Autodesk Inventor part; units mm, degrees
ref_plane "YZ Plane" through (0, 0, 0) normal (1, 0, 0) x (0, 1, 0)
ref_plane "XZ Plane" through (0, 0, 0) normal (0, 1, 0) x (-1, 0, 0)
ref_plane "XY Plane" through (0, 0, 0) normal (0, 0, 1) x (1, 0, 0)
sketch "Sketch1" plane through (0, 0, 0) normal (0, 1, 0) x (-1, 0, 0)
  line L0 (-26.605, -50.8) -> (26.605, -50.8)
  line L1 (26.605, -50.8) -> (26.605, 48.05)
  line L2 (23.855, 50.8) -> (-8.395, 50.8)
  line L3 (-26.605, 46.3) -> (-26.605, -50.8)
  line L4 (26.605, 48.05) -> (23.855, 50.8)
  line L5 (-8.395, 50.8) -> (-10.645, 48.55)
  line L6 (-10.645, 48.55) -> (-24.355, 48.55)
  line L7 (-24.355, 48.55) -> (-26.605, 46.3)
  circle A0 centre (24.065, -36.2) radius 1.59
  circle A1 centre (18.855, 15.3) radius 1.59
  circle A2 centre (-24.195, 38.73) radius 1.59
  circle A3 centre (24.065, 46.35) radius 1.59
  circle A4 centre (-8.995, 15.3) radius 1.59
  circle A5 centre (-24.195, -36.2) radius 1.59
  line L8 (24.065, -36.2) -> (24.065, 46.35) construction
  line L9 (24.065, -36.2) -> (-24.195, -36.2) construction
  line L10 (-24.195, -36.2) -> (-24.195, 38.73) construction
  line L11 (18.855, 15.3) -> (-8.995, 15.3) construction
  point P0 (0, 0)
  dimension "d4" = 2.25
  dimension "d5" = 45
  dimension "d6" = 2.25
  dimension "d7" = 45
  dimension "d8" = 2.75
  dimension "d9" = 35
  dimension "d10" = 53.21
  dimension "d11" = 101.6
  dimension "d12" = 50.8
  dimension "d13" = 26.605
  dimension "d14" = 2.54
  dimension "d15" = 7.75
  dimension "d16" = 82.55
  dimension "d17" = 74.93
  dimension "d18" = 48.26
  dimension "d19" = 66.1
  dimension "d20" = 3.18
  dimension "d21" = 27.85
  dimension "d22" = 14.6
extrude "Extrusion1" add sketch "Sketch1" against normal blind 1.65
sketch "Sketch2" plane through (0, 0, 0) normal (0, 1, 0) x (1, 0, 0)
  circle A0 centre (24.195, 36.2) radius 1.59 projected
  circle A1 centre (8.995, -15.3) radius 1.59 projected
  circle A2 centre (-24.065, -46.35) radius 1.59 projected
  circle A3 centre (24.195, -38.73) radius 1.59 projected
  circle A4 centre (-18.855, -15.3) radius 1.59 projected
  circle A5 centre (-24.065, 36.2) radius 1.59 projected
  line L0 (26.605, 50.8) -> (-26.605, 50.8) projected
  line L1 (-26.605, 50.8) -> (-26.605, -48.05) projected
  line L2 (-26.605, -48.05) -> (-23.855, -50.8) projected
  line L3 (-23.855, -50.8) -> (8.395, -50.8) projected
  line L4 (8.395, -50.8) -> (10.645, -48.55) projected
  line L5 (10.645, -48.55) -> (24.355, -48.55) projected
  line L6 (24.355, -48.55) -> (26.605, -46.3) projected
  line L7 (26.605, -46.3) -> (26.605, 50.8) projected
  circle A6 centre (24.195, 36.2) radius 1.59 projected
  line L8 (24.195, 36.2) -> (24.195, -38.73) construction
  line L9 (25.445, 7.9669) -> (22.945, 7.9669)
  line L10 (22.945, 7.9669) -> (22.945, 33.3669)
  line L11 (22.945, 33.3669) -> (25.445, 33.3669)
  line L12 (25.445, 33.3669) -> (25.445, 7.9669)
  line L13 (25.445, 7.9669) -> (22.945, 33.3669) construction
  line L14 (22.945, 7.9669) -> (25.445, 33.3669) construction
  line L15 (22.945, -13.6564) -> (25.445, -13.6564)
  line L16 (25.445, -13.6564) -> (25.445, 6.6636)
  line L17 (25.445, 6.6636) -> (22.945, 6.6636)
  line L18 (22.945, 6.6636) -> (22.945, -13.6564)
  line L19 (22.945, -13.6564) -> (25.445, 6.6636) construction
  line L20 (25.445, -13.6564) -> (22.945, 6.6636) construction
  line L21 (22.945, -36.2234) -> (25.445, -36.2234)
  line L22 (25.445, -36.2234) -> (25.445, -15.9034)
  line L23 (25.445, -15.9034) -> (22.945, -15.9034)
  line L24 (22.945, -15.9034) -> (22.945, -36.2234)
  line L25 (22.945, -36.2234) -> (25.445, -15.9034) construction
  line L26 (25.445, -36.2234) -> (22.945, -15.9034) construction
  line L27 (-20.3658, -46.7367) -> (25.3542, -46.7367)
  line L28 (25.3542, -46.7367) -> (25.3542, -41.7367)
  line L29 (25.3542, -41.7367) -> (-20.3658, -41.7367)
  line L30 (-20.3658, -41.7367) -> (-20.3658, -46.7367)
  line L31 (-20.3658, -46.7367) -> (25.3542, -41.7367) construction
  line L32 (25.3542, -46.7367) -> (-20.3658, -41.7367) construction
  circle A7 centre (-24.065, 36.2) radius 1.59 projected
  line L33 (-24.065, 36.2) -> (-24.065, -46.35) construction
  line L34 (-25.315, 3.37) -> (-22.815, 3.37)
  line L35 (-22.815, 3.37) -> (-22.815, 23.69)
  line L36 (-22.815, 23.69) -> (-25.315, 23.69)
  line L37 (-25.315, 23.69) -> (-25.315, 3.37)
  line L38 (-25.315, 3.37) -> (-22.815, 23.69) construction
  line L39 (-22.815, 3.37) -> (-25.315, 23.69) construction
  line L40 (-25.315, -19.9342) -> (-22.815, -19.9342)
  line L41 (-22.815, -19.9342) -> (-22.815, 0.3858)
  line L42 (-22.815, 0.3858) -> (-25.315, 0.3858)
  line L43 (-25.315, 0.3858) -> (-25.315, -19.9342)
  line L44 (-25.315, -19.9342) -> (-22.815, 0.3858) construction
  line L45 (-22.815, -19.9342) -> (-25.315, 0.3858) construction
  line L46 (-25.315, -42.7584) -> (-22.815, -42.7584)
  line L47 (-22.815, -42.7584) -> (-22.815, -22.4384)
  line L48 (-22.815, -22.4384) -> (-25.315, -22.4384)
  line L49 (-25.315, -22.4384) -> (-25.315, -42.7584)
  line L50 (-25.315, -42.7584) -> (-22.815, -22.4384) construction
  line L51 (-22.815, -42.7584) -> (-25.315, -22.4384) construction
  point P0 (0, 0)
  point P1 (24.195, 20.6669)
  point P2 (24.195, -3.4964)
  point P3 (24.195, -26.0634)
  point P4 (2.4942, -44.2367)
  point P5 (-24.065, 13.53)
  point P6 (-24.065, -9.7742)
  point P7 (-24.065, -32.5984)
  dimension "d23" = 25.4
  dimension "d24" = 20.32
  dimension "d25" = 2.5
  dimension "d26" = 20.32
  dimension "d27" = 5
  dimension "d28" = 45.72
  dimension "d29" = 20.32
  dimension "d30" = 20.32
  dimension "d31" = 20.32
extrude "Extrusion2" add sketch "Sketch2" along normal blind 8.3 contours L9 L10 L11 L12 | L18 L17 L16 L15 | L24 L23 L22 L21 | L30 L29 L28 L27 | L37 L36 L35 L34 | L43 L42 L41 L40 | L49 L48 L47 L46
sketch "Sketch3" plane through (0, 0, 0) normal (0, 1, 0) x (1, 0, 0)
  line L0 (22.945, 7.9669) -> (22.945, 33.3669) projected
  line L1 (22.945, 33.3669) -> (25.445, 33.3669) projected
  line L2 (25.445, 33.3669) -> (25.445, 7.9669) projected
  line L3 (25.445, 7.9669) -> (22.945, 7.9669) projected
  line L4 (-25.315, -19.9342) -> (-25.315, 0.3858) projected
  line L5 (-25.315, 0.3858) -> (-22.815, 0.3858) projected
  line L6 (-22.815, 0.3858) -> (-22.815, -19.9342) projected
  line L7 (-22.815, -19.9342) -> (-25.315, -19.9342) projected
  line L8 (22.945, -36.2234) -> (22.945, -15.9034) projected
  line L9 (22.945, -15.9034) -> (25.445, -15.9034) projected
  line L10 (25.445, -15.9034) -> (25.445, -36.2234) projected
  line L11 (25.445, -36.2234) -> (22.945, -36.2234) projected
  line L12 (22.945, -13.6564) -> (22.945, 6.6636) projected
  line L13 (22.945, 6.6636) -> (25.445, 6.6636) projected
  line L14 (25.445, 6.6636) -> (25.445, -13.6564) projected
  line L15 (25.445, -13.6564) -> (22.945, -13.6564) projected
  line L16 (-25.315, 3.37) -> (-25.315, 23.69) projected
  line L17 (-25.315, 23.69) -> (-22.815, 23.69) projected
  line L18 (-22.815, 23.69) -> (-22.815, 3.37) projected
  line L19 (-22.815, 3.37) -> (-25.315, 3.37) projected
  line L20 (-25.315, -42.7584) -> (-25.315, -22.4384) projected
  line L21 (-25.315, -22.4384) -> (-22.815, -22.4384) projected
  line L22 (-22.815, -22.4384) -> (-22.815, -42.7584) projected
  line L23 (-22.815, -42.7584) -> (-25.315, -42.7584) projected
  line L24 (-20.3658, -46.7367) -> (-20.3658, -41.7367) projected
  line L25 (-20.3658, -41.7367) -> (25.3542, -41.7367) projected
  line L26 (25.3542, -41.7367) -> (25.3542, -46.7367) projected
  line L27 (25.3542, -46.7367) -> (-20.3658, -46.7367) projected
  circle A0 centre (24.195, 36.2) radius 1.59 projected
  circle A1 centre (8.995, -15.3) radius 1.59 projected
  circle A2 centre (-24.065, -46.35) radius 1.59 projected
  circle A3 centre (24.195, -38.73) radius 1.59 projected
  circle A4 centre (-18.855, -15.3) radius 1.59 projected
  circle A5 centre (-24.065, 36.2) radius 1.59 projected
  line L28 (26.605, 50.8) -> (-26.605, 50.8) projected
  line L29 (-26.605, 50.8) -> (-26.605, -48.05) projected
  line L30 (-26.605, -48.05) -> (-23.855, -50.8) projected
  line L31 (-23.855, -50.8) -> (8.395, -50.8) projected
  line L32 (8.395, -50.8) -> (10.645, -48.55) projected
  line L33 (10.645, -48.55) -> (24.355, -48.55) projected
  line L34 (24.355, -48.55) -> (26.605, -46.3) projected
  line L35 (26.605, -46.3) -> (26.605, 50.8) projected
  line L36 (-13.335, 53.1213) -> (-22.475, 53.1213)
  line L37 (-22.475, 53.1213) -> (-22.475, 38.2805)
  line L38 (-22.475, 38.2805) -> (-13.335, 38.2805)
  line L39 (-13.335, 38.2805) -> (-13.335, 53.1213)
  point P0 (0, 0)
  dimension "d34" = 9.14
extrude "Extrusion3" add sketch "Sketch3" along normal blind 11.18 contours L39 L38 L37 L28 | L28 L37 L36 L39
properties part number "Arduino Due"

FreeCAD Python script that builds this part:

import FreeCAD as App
import Part
import Sketcher

V = App.Vector
Q = App.Units.Quantity

doc = App.newDocument("Part")
body = doc.addObject("PartDesign::Body", "Body")

# Sketch on XZ plane
sketch1 = body.newObject("Sketcher::SketchObject", "Sketch")
sketch1.AttachmentSupport = (doc.getObject("XZ_Plane"), [""])
sketch1.MapMode = "FlatFace"
sketch1.addGeometry([
    Part.LineSegment(V(26.605, 46.3, 0), V(26.605, -50.8, 0)),  # 0
    Part.LineSegment(V(26.605, -50.8, 0), V(-26.605, -50.8, 0)),  # 1
    Part.LineSegment(V(-26.605, -50.8, 0), V(-26.605, 48.05, 0)),  # 2
    Part.LineSegment(V(-26.605, 48.05, 0), V(-23.855, 50.8, 0)),  # 3
    Part.LineSegment(V(-23.855, 50.8, 0), V(8.395, 50.8, 0)),  # 4
    Part.LineSegment(V(8.395, 50.8, 0), V(10.645, 48.55, 0)),  # 5
    Part.LineSegment(V(10.645, 48.55, 0), V(24.355, 48.55, 0)),  # 6
    Part.LineSegment(V(24.355, 48.55, 0), V(26.605, 46.3, 0)),  # 7
    Part.Circle(V(24.195, -36.2, 0), V(0, 0, 1), 1.59),  # 8
    Part.Circle(V(-24.065, -36.2, 0), V(0, 0, 1), 1.59),  # 9
    Part.Circle(V(8.995, 15.3, 0), V(0, 0, 1), 1.59),  # 10
    Part.Circle(V(24.195, 38.73, 0), V(0, 0, 1), 1.59),  # 11
    Part.Circle(V(-18.855, 15.3, 0), V(0, 0, 1), 1.59),  # 12
    Part.Circle(V(-24.065, 46.35, 0), V(0, 0, 1), 1.59),  # 13
], False)
sketch1.addConstraint([
    Sketcher.Constraint("Coincident", 0, 2, 1, 1),
    Sketcher.Constraint("Coincident", 1, 2, 2, 1),
    Sketcher.Constraint("Coincident", 2, 2, 3, 1),
    Sketcher.Constraint("Coincident", 3, 2, 4, 1),
    Sketcher.Constraint("Coincident", 4, 2, 5, 1),
    Sketcher.Constraint("Coincident", 5, 2, 6, 1),
    Sketcher.Constraint("Coincident", 6, 2, 7, 1),
    Sketcher.Constraint("Coincident", 7, 2, 0, 1),
    Sketcher.Constraint("Vertical", 0),
    Sketcher.Constraint("Horizontal", 1),
    Sketcher.Constraint("Vertical", 2),
    Sketcher.Constraint("Horizontal", 4),
    Sketcher.Constraint("Horizontal", 6),
    Sketcher.Constraint("Equal", 8, 9),
    Sketcher.Constraint("Equal", 9, 10),
    Sketcher.Constraint("Equal", 10, 11),
    Sketcher.Constraint("Equal", 11, 12),
    Sketcher.Constraint("Equal", 12, 13),
    Sketcher.Constraint("Perpendicular", 3, 5),
    Sketcher.Constraint("Parallel", 5, 7),
    Sketcher.Constraint("Horizontal", 8, 3, 9, 3),
    Sketcher.Constraint("Horizontal", 10, 3, 12, 3),
    Sketcher.Constraint("Vertical", 8, 3, 11, 3),
    Sketcher.Constraint("Vertical", 9, 3, 13, 3),
    Sketcher.Constraint("Equal", 5, 7),
    Sketcher.Constraint("Diameter", 8, 3.18),
    Sketcher.Constraint("Angle", 3, Q("45 deg")),
    Sketcher.Constraint("DistanceX", 2, 2, 4, 2, 35.0),
    Sketcher.Constraint("DistanceX", 1, 2, 1, 1, 53.21),
    Sketcher.Constraint("DistanceY", 0, 2, -1, 1, 50.8),
    Sketcher.Constraint("DistanceY", -1, 1, 3, 2, 50.8),
    Sketcher.Constraint("DistanceY", 0, 2, 8, 3, 14.6),
    Sketcher.Constraint("DistanceY", 0, 2, 10, 3, 66.1),
    Sketcher.Constraint("DistanceX", 1, 2, 8, 3, 50.8),
    Sketcher.Constraint("DistanceX", 9, 3, 8, 3, 48.26),
    Sketcher.Constraint("DistanceY", 8, 3, 11, 3, 74.93),
    Sketcher.Constraint("DistanceX", 12, 3, 10, 3, 27.85),
    Sketcher.Constraint("DistanceY", 9, 3, 13, 3, 82.55),
    Sketcher.Constraint("DistanceX", 1, 2, 12, 3, 7.75),
    Sketcher.Constraint("DistanceX", 2, 2, 3, 2, 2.75),
    Sketcher.Constraint("DistanceX", 4, 2, 5, 2, 2.25),
    Sketcher.Constraint("DistanceX", -1, 1, 0, 2, 26.605),
])
pad1 = body.newObject("PartDesign::Pad", "Pad")
pad1.Profile = sketch1
pad1.Length = 1.65

# Sketch on XZ plane
sketch2 = body.newObject("Sketcher::SketchObject", "Sketch001")
sketch2.AttachmentSupport = (doc.getObject("XZ_Plane"), [""])
sketch2.MapMode = "FlatFace"
sketch2.addGeometry([
    Part.LineSegment(V(22.945, -7.9669, 0), V(25.445, -7.9669, 0)),  # 0
    Part.LineSegment(V(25.445, -7.9669, 0), V(25.445, -33.3669, 0)),  # 1
    Part.LineSegment(V(25.445, -33.3669, 0), V(22.945, -33.3669, 0)),  # 2
    Part.LineSegment(V(22.945, -33.3669, 0), V(22.945, -7.9669, 0)),  # 3
    Part.LineSegment(V(22.945, -6.6636, 0), V(22.945, 13.6564, 0)),  # 4
    Part.LineSegment(V(22.945, 13.6564, 0), V(25.445, 13.6564, 0)),  # 5
    Part.LineSegment(V(25.445, 13.6564, 0), V(25.445, -6.6636, 0)),  # 6
    Part.LineSegment(V(25.445, -6.6636, 0), V(22.945, -6.6636, 0)),  # 7
    Part.LineSegment(V(22.945, 15.9034, 0), V(22.945, 36.2234, 0)),  # 8
    Part.LineSegment(V(22.945, 36.2234, 0), V(25.445, 36.2234, 0)),  # 9
    Part.LineSegment(V(25.445, 36.2234, 0), V(25.445, 15.9034, 0)),  # 10
    Part.LineSegment(V(25.445, 15.9034, 0), V(22.945, 15.9034, 0)),  # 11
    Part.LineSegment(V(-20.3658, 41.7367, 0), V(-20.3658, 46.7367, 0)),  # 12
    Part.LineSegment(V(-20.3658, 46.7367, 0), V(25.3542, 46.7367, 0)),  # 13
    Part.LineSegment(V(25.3542, 46.7367, 0), V(25.3542, 41.7367, 0)),  # 14
    Part.LineSegment(V(25.3542, 41.7367, 0), V(-20.3658, 41.7367, 0)),  # 15
    Part.LineSegment(V(-25.315, -23.69, 0), V(-25.315, -3.37, 0)),  # 16
    Part.LineSegment(V(-25.315, -3.37, 0), V(-22.815, -3.37, 0)),  # 17
    Part.LineSegment(V(-22.815, -3.37, 0), V(-22.815, -23.69, 0)),  # 18
    Part.LineSegment(V(-22.815, -23.69, 0), V(-25.315, -23.69, 0)),  # 19
    Part.LineSegment(V(-25.315, -0.3858, 0), V(-25.315, 19.9342, 0)),  # 20
    Part.LineSegment(V(-25.315, 19.9342, 0), V(-22.815, 19.9342, 0)),  # 21
    Part.LineSegment(V(-22.815, 19.9342, 0), V(-22.815, -0.3858, 0)),  # 22
    Part.LineSegment(V(-22.815, -0.3858, 0), V(-25.315, -0.3858, 0)),  # 23
    Part.LineSegment(V(-25.315, 22.4384, 0), V(-25.315, 42.7584, 0)),  # 24
    Part.LineSegment(V(-25.315, 42.7584, 0), V(-22.815, 42.7584, 0)),  # 25
    Part.LineSegment(V(-22.815, 42.7584, 0), V(-22.815, 22.4384, 0)),  # 26
    Part.LineSegment(V(-22.815, 22.4384, 0), V(-25.315, 22.4384, 0)),  # 27
], False)
sketch2.addConstraint([
    Sketcher.Constraint("Coincident", 0, 2, 1, 1),
    Sketcher.Constraint("Coincident", 1, 2, 2, 1),
    Sketcher.Constraint("Coincident", 2, 2, 3, 1),
    Sketcher.Constraint("Coincident", 3, 2, 0, 1),
    Sketcher.Constraint("Coincident", 4, 2, 5, 1),
    Sketcher.Constraint("Coincident", 5, 2, 6, 1),
    Sketcher.Constraint("Coincident", 6, 2, 7, 1),
    Sketcher.Constraint("Coincident", 7, 2, 4, 1),
    Sketcher.Constraint("Coincident", 8, 2, 9, 1),
    Sketcher.Constraint("Coincident", 9, 2, 10, 1),
    Sketcher.Constraint("Coincident", 10, 2, 11, 1),
    Sketcher.Constraint("Coincident", 11, 2, 8, 1),
    Sketcher.Constraint("Coincident", 12, 2, 13, 1),
    Sketcher.Constraint("Coincident", 13, 2, 14, 1),
    Sketcher.Constraint("Coincident", 14, 2, 15, 1),
    Sketcher.Constraint("Coincident", 15, 2, 12, 1),
    Sketcher.Constraint("Coincident", 16, 2, 17, 1),
    Sketcher.Constraint("Coincident", 17, 2, 18, 1),
    Sketcher.Constraint("Coincident", 18, 2, 19, 1),
    Sketcher.Constraint("Coincident", 19, 2, 16, 1),
    Sketcher.Constraint("Coincident", 20, 2, 21, 1),
    Sketcher.Constraint("Coincident", 21, 2, 22, 1),
    Sketcher.Constraint("Coincident", 22, 2, 23, 1),
    Sketcher.Constraint("Coincident", 23, 2, 20, 1),
    Sketcher.Constraint("Coincident", 24, 2, 25, 1),
    Sketcher.Constraint("Coincident", 25, 2, 26, 1),
    Sketcher.Constraint("Coincident", 26, 2, 27, 1),
    Sketcher.Constraint("Coincident", 27, 2, 24, 1),
    Sketcher.Constraint("Horizontal", 0),
    Sketcher.Constraint("Vertical", 1),
    Sketcher.Constraint("Horizontal", 2),
    Sketcher.Constraint("Vertical", 3),
    Sketcher.Constraint("Vertical", 4),
    Sketcher.Constraint("Horizontal", 5),
    Sketcher.Constraint("Vertical", 6),
    Sketcher.Constraint("Horizontal", 7),
    Sketcher.Constraint("Vertical", 8),
    Sketcher.Constraint("Horizontal", 9),
    Sketcher.Constraint("Vertical", 10),
    Sketcher.Constraint("Horizontal", 11),
    Sketcher.Constraint("Vertical", 12),
    Sketcher.Constraint("Horizontal", 13),
    Sketcher.Constraint("Vertical", 14),
    Sketcher.Constraint("Horizontal", 15),
    Sketcher.Constraint("Vertical", 16),
    Sketcher.Constraint("Horizontal", 17),
    Sketcher.Constraint("Vertical", 18),
    Sketcher.Constraint("Horizontal", 19),
    Sketcher.Constraint("Vertical", 20),
    Sketcher.Constraint("Horizontal", 21),
    Sketcher.Constraint("Vertical", 22),
    Sketcher.Constraint("Horizontal", 23),
    Sketcher.Constraint("Vertical", 24),
    Sketcher.Constraint("Horizontal", 25),
    Sketcher.Constraint("Vertical", 26),
    Sketcher.Constraint("Horizontal", 27),
    Sketcher.Constraint("Vertical", 3, 2, 4, 2),
    Sketcher.Constraint("Vertical", 1, 2, 5, 2),
    Sketcher.Constraint("Vertical", 7, 2, 8, 2),
    Sketcher.Constraint("Vertical", 6, 2, 9, 2),
    Sketcher.Constraint("Vertical", 19, 2, 20, 2),
    Sketcher.Constraint("Vertical", 18, 2, 21, 2),
    Sketcher.Constraint("Vertical", 23, 2, 24, 2),
    Sketcher.Constraint("Vertical", 22, 2, 25, 2),
    Sketcher.Constraint("Equal", 11, 17),
    Sketcher.Constraint("Equal", 6, 8),
    Sketcher.Constraint("Equal", 10, 16),
    Sketcher.Constraint("Equal", 18, 20),
    Sketcher.Constraint("Equal", 22, 24),
    Sketcher.Constraint("DistanceY", 12, 1, 12, 2, 5.0),
    Sketcher.Constraint("DistanceX", 0, 1, 0, 2, 2.5),
    Sketcher.Constraint("DistanceY", 1, 2, 1, 1, 25.4),
    Sketcher.Constraint("DistanceX", 13, 1, 13, 2, 45.72),
    Sketcher.Constraint("DistanceY", 4, 1, 4, 2, 20.32),
    Sketcher.Constraint("DistanceY", 16, 2, -1, 1, 3.37),
    Sketcher.Constraint("DistanceX", 16, 2, 7, 2, 48.26),
    Sketcher.Constraint("DistanceX", -1, 1, 0, 2, 25.445),
    Sketcher.Constraint("DistanceY", 0, 2, -1, 1, 7.967),
    Sketcher.Constraint("DistanceY", 4, 2, 8, 2, 22.567),
    Sketcher.Constraint("DistanceY", -1, 1, 4, 2, 13.6564),
    Sketcher.Constraint("DistanceX", 12, 2, -1, 1, 20.3658),
    Sketcher.Constraint("DistanceY", -1, 1, 12, 2, 46.7367),
    Sketcher.Constraint("DistanceY", -1, 1, 20, 2, 19.9342),
    Sketcher.Constraint("DistanceY", -1, 1, 24, 2, 42.7584),
])
pad2 = body.newObject("PartDesign::Pad", "Pad001")
pad2.Profile = sketch2
pad2.Length = 8.3
pad2.Reversed = True

# Sketch on XZ plane
sketch3 = body.newObject("Sketcher::SketchObject", "Sketch002")
sketch3.AttachmentSupport = (doc.getObject("XZ_Plane"), [""])
sketch3.MapMode = "FlatFace"
sketch3.addGeometry([
    Part.LineSegment(V(-13.335, -38.2805, 0), V(-13.335, -53.1213, 0)),
    Part.LineSegment(V(-13.335, -53.1213, 0), V(-22.475, -53.1213, 0)),
    Part.LineSegment(V(-22.475, -53.1213, 0), V(-22.475, -38.2805, 0)),
    Part.LineSegment(V(-22.475, -38.2805, 0), V(-13.335, -38.2805, 0)),
], False)
sketch3.addConstraint([
    Sketcher.Constraint("Coincident", 0, 2, 1, 1),
    Sketcher.Constraint("Coincident", 1, 2, 2, 1),
    Sketcher.Constraint("Coincident", 2, 2, 3, 1),
    Sketcher.Constraint("Coincident", 3, 2, 0, 1),
    Sketcher.Constraint("Vertical", 0),
    Sketcher.Constraint("Horizontal", 1),
    Sketcher.Constraint("Vertical", 2),
    Sketcher.Constraint("Horizontal", 3),
    Sketcher.Constraint("DistanceX", 1, 2, 1, 1, 9.14),
    Sketcher.Constraint("DistanceY", 0, 2, 0, 1, 14.8408),
    Sketcher.Constraint("DistanceX", 0, 2, -1, 1, 13.335),
    Sketcher.Constraint("DistanceY", 0, 2, -1, 1, 53.1213),
])
pad3 = body.newObject("PartDesign::Pad", "Pad002")
pad3.Profile = sketch3
pad3.Length = 11.18
pad3.Reversed = True

doc.recompute()
